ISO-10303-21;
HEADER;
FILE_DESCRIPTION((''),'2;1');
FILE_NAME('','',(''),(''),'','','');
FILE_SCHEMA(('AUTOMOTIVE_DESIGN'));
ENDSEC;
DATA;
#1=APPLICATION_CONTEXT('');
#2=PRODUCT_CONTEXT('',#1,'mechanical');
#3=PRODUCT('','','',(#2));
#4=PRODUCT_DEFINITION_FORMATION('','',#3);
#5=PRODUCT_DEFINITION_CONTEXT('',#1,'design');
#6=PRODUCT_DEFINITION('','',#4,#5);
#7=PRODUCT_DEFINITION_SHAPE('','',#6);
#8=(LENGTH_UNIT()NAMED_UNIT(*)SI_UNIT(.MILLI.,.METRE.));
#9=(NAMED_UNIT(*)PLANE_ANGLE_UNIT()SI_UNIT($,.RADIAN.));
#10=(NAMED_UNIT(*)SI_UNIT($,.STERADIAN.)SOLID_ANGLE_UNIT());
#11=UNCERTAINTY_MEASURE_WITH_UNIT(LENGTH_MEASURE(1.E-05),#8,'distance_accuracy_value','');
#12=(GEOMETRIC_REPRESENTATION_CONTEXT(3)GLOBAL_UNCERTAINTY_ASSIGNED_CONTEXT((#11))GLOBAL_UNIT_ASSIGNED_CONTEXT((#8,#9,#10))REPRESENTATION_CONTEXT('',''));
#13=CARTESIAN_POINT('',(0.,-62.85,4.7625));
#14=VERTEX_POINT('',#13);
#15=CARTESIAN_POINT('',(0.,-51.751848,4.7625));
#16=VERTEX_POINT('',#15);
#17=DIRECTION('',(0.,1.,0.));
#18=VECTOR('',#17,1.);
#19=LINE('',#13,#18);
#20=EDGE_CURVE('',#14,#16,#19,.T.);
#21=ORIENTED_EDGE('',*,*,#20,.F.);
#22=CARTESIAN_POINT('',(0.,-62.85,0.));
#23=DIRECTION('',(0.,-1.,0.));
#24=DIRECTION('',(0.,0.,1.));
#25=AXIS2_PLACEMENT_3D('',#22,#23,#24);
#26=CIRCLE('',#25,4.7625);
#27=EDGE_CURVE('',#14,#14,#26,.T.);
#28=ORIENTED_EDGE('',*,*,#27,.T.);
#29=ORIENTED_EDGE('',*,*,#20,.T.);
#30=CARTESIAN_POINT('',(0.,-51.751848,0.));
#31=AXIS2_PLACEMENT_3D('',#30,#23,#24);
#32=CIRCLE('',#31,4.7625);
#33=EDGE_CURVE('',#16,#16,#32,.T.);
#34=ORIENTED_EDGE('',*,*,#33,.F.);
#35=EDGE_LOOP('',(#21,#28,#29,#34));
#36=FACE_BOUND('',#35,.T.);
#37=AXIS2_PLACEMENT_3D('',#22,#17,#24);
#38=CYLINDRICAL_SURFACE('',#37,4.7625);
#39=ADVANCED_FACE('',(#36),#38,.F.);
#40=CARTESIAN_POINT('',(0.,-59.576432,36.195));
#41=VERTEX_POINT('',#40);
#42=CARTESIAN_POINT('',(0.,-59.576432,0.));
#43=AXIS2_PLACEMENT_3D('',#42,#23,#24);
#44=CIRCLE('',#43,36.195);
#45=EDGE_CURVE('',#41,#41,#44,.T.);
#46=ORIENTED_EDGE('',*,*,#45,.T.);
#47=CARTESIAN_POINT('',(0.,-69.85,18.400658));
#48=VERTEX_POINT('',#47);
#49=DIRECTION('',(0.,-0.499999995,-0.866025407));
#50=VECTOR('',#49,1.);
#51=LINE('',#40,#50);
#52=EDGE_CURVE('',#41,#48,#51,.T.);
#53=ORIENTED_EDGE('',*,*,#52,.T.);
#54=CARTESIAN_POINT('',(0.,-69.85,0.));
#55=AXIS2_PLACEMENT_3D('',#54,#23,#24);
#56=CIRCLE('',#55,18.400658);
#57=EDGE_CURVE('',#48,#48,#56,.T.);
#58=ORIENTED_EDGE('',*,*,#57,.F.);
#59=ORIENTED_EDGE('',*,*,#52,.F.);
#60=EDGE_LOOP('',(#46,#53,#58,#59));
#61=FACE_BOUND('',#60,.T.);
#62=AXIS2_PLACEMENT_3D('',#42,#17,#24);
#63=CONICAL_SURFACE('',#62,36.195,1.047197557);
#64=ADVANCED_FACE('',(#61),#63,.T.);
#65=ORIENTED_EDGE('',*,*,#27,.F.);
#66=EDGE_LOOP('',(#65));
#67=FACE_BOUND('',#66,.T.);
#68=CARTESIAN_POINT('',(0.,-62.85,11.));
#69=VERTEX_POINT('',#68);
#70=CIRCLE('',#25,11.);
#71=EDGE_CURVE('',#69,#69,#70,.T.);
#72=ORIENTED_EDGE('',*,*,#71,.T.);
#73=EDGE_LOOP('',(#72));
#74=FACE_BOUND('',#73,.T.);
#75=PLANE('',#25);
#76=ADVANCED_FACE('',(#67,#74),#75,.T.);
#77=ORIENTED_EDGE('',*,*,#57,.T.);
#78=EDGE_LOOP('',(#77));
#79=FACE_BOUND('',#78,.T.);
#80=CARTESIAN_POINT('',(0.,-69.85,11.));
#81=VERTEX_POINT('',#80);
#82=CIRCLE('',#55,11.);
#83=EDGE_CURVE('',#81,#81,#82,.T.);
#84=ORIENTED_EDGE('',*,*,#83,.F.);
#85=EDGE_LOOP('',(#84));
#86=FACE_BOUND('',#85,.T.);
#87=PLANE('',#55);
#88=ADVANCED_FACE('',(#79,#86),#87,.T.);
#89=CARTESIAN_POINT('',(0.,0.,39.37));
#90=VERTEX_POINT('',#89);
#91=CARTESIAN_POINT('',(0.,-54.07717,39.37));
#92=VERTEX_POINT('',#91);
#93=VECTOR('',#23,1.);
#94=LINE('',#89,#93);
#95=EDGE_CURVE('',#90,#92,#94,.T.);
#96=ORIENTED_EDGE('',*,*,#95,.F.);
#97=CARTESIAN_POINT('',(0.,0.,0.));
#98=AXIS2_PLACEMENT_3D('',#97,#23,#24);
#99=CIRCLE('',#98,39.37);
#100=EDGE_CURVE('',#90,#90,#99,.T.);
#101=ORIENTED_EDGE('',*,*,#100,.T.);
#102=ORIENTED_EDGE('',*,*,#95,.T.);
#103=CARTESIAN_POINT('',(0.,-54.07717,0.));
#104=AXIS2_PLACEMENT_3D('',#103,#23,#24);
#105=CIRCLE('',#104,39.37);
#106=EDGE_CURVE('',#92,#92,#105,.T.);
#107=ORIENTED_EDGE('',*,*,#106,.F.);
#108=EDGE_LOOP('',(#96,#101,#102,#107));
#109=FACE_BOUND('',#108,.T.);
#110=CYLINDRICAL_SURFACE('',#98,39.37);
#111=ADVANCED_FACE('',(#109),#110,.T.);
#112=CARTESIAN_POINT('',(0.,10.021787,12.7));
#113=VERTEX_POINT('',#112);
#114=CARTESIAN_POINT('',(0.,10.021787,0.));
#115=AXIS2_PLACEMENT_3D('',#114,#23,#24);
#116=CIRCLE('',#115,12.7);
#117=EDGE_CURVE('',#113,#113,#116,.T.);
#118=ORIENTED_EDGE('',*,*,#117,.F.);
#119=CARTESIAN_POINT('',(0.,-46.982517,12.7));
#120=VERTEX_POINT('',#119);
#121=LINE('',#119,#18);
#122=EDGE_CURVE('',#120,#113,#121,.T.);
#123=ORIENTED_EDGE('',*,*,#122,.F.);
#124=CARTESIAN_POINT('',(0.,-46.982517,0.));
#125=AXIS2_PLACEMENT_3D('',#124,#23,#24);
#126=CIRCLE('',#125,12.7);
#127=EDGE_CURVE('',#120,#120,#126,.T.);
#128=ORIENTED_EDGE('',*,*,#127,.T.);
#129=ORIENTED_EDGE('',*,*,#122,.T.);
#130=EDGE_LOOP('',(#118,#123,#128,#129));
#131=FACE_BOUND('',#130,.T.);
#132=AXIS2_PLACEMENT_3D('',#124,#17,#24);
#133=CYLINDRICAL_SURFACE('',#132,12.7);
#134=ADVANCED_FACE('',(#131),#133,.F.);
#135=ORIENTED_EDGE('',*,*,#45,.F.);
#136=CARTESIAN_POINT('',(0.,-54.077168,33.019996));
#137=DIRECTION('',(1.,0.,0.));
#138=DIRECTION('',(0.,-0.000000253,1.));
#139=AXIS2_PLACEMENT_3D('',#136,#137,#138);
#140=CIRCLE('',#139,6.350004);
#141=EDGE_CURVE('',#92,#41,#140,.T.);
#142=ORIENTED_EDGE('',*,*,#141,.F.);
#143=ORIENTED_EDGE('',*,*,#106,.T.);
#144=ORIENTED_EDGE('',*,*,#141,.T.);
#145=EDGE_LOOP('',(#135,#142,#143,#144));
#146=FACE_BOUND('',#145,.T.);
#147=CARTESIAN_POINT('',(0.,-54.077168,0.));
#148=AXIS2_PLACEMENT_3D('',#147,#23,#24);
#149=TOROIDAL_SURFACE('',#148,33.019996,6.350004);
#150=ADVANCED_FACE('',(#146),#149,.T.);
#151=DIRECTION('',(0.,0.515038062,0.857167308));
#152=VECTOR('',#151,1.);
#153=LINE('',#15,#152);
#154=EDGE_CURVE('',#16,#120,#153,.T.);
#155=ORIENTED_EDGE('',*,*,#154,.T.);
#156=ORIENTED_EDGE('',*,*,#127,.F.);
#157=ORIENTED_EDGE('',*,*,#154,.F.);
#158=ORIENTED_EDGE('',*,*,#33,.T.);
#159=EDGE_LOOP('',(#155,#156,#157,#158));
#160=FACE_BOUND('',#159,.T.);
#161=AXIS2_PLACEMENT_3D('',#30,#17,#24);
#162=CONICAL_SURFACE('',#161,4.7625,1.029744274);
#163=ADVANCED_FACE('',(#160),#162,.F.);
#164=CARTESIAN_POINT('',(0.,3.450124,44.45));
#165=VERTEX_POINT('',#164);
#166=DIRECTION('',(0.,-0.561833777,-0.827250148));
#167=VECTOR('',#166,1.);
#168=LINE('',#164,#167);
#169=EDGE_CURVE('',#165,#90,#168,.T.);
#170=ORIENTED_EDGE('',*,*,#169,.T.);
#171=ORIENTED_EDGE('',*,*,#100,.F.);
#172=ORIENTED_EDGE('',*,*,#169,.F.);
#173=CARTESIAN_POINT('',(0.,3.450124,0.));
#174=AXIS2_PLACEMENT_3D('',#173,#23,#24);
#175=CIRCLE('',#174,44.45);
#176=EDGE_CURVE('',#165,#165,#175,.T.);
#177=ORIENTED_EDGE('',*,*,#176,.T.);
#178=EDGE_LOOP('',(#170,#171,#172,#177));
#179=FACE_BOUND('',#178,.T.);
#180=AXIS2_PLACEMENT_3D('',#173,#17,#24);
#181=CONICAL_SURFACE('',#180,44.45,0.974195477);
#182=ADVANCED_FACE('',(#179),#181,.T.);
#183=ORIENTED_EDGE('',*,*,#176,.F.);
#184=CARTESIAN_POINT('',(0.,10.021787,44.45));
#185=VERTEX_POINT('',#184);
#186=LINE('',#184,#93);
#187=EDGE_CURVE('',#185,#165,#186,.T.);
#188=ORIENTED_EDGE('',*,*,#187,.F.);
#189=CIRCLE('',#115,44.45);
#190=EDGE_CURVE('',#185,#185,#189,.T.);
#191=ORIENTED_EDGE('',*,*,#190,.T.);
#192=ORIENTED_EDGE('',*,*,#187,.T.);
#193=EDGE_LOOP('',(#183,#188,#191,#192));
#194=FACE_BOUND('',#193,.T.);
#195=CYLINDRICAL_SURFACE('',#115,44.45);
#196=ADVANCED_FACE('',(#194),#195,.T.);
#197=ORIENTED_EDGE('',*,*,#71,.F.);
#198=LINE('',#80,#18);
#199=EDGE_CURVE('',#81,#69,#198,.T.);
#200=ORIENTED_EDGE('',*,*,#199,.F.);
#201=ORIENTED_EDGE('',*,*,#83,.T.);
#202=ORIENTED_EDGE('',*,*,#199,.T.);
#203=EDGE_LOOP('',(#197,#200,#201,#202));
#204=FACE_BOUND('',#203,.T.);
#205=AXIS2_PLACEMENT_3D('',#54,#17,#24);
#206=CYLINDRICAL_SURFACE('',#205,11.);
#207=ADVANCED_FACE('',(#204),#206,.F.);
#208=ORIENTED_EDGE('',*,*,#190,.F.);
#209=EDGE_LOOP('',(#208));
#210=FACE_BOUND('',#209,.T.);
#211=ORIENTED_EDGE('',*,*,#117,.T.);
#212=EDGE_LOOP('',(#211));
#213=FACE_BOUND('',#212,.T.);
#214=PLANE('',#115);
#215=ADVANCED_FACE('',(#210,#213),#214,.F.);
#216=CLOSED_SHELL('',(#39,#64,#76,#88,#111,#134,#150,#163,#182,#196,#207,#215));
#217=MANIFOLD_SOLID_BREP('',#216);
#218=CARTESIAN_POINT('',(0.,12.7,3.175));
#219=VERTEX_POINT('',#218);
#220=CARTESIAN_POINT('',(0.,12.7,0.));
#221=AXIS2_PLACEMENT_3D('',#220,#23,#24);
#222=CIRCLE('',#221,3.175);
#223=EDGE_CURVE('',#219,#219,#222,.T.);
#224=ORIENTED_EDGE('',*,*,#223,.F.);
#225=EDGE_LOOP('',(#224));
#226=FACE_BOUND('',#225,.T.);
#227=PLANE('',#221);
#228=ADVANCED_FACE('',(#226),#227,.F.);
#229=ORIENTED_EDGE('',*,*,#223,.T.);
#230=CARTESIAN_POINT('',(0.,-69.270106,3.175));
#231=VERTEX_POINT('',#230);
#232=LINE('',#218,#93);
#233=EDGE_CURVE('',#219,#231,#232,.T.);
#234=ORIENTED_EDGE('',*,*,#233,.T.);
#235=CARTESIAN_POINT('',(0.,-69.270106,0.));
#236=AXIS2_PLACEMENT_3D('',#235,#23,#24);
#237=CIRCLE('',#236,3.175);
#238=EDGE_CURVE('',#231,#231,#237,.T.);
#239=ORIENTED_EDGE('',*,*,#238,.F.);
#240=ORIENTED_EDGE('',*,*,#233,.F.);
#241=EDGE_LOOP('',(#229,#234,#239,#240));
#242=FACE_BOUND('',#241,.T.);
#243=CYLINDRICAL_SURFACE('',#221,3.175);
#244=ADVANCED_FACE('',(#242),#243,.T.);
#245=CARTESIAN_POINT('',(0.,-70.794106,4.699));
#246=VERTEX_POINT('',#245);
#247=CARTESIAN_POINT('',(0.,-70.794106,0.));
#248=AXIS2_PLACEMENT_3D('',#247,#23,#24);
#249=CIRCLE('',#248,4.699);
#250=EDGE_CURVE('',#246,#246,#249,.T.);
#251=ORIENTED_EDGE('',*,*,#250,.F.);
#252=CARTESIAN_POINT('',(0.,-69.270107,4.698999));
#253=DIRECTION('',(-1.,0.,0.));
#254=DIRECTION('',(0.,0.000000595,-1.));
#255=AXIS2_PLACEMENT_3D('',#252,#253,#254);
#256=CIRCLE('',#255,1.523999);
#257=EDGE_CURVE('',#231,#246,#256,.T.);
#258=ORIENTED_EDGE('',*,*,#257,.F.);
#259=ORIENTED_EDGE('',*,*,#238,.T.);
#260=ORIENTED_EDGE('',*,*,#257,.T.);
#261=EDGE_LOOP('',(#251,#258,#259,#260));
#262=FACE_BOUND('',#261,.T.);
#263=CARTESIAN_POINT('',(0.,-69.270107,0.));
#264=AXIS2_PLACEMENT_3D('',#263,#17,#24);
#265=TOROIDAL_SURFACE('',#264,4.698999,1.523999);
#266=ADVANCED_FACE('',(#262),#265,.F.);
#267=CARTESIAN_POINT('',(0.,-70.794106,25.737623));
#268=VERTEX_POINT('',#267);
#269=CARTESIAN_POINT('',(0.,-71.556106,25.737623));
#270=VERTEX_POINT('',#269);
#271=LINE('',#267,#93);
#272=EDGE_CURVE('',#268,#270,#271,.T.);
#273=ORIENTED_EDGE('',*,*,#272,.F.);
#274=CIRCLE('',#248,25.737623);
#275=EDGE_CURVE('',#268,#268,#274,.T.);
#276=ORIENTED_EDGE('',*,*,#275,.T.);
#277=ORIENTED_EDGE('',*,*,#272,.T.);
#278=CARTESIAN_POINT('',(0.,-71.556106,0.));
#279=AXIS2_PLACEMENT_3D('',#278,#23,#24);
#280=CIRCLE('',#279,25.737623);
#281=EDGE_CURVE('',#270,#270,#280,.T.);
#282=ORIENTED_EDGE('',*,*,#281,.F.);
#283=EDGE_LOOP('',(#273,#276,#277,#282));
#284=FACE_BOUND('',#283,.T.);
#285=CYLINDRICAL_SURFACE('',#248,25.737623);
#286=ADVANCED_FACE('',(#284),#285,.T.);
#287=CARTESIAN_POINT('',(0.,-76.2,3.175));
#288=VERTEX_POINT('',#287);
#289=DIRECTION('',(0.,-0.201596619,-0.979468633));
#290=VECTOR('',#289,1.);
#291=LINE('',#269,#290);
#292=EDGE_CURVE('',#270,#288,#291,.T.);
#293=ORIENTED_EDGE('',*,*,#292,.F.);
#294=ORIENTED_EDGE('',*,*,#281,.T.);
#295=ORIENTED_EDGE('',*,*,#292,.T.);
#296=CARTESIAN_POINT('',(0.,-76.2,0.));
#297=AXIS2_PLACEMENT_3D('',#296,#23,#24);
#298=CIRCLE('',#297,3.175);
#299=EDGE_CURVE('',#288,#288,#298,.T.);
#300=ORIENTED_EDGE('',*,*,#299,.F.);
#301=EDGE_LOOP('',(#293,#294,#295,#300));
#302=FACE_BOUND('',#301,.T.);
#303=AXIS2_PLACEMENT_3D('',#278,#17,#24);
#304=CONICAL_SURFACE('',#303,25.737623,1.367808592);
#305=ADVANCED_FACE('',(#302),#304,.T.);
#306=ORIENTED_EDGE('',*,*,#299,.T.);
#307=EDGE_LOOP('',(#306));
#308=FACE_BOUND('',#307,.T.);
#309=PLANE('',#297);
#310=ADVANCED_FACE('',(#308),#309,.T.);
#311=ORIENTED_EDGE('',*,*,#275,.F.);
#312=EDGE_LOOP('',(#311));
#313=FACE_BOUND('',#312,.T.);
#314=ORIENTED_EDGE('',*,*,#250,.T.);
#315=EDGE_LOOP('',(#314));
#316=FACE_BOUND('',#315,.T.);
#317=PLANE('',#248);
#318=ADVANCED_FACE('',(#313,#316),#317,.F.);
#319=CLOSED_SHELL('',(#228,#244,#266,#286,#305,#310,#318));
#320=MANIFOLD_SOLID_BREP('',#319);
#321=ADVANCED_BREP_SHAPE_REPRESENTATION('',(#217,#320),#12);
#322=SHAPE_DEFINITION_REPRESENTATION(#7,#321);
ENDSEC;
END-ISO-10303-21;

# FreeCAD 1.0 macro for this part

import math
import FreeCAD as App
import Part
import Sketcher

V = App.Vector
Q = App.Units.Quantity

doc = App.newDocument("Part")
body = doc.addObject("PartDesign::Body", "Body")

sketch1 = body.newObject("Sketcher::SketchObject", "Sketch")
sketch1.AttachmentSupport = (doc.getObject("YZ_Plane"), [""])
sketch1.MapMode = "FlatFace"
sketch1.addGeometry([
    Part.LineSegment(V(3, 44, 0), V(0, 39, 0)),
    Part.LineSegment(V(0, 39, 0), V(-54, 39, 0)),
    Part.ArcOfCircle(Part.Circle(V(-54, 33, 0), V(0, 0, 1), 6), math.radians(90), math.radians(150)),
    Part.LineSegment(V(-60, 36, 0), V(-70, 18, 0)),
    Part.LineSegment(V(-70, 18, 0), V(-70, 11, 0)),
    Part.LineSegment(V(-70, 11, 0), V(-63, 11, 0)),
    Part.LineSegment(V(-63, 11, 0), V(-63, 5, 0)),
    Part.LineSegment(V(-63, 5, 0), V(-52, 5, 0)),
    Part.LineSegment(V(-52, 5, 0), V(-47, 13, 0)),
    Part.LineSegment(V(-47, 13, 0), V(10, 13, 0)),
    Part.LineSegment(V(10, 13, 0), V(10, 44, 0)),
    Part.LineSegment(V(10, 44, 0), V(3, 44, 0)),
], False)
sketch1.addConstraint([
    Sketcher.Constraint("Coincident", 0, 2, 1, 1),
    Sketcher.Constraint("Tangent", 1, 2, 2, 1),
    Sketcher.Constraint("Tangent", 2, 2, 3, 1),
    Sketcher.Constraint("Coincident", 3, 2, 4, 1),
    Sketcher.Constraint("Coincident", 4, 2, 5, 1),
    Sketcher.Constraint("Coincident", 5, 2, 6, 1),
    Sketcher.Constraint("Coincident", 6, 2, 7, 1),
    Sketcher.Constraint("Coincident", 7, 2, 8, 1),
    Sketcher.Constraint("Coincident", 8, 2, 9, 1),
    Sketcher.Constraint("Coincident", 9, 2, 10, 1),
    Sketcher.Constraint("Coincident", 10, 2, 11, 1),
    Sketcher.Constraint("Coincident", 11, 2, 0, 1),
    Sketcher.Constraint("Horizontal", 1),
    Sketcher.Constraint("Vertical", 4),
    Sketcher.Constraint("Horizontal", 5),
    Sketcher.Constraint("Vertical", 6),
    Sketcher.Constraint("Horizontal", 7),
    Sketcher.Constraint("Horizontal", 9),
    Sketcher.Constraint("Vertical", 10),
    Sketcher.Constraint("Horizontal", 11),
    Sketcher.Constraint("PointOnObject", 0, 2, -2),
    Sketcher.Constraint("Radius", 2, Q("0.2500002 in")),
    Sketcher.Constraint("Angle", 3, Q("-120 deg")),
    Sketcher.Constraint("Angle", 8, Q("59.000001 deg")),
    Sketcher.Constraint("DistanceY", 10, 1, 10, 2, Q("1.25 in")),
    Sketcher.Constraint("DistanceY", -1, 1, 2, 3, Q("1.2999998 in")),
    Sketcher.Constraint("DistanceY", -1, 1, 8, 2, Q("0.5 in")),
    Sketcher.Constraint("DistanceX", 3, 2, -1, 1, Q("2.75 in")),
    Sketcher.Constraint("DistanceY", -1, 1, 6, 2, Q("0.1875 in")),
    Sketcher.Constraint("DistanceX", 5, 1, 5, 2, 7.0),
    Sketcher.Constraint("DistanceY", 6, 2, 6, 1, 6.2375),
    Sketcher.Constraint("DistanceX", 1, 2, 1, 1, 54.07717),
    Sketcher.Constraint("DistanceX", 7, 1, 7, 2, 11.098152),
    Sketcher.Constraint("DistanceX", 9, 1, 9, 2, 57.004304),
    Sketcher.Constraint("DistanceX", 11, 2, 11, 1, 6.571663),
])
revolution = body.newObject("PartDesign::Revolution", "Revolution")
revolution.Profile = sketch1
revolution.ReferenceAxis = (sketch1, ["H_Axis"])
revolution.Angle = 360
body2 = doc.addObject("PartDesign::Body", "Body001")

sketch2 = body2.newObject("Sketcher::SketchObject", "Sketch001")
sketch2.AttachmentSupport = (doc.getObject("YZ_Plane001"), [""])
sketch2.MapMode = "FlatFace"
sketch2.addGeometry([
    Part.LineSegment(V(-76.2, 0, 0), V(12.7, 0, 0)),
    Part.LineSegment(V(12.7, 0, 0), V(12.7, 3.2, 0)),
    Part.LineSegment(V(12.7, 3.2, 0), V(-69.3, 3.2, 0)),
    Part.ArcOfCircle(Part.Circle(V(-69.3, 4.7, 0), V(0, 0, 1), 1.5), math.radians(180), math.radians(270)),
    Part.LineSegment(V(-70.8, 4.7, 0), V(-70.8, 25.7, 0)),
    Part.LineSegment(V(-70.8, 25.7, 0), V(-71.6, 25.7, 0)),
    Part.LineSegment(V(-71.6, 25.7, 0), V(-76.2, 3.2, 0)),
    Part.LineSegment(V(-76.2, 3.2, 0), V(-76.2, 0, 0)),
], False)
sketch2.addConstraint([
    Sketcher.Constraint("Coincident", 0, 2, 1, 1),
    Sketcher.Constraint("Coincident", 1, 2, 2, 1),
    Sketcher.Constraint("Tangent", 2, 2, 3, 2),
    Sketcher.Constraint("Tangent", 3, 1, 4, 1),
    Sketcher.Constraint("Coincident", 4, 2, 5, 1),
    Sketcher.Constraint("Coincident", 5, 2, 6, 1),
    Sketcher.Constraint("Coincident", 6, 2, 7, 1),
    Sketcher.Constraint("Coincident", 7, 2, 0, 1),
    Sketcher.Constraint("Horizontal", 0),
    Sketcher.Constraint("Vertical", 1),
    Sketcher.Constraint("Horizontal", 2),
    Sketcher.Constraint("Vertical", 4),
    Sketcher.Constraint("Horizontal", 5),
    Sketcher.Constraint("Vertical", 7),
    Sketcher.Constraint("PointOnObject", 0, 2, -1),
    Sketcher.Constraint("Horizontal", 2, 2, 6, 2),
    Sketcher.Constraint("Radius", 3, Q("0.06 in")),
    Sketcher.Constraint("DistanceX", 0, 1, 0, 2, Q("3.5 in")),
    Sketcher.Constraint("DistanceX", 6, 2, -1, 1, Q("3 in")),
    Sketcher.Constraint("DistanceX", 5, 2, 5, 1, Q("0.03 in")),
    Sketcher.Constraint("DistanceY", 1, 1, 1, 2, Q("0.125 in")),
    Sketcher.Constraint("DistanceX", 2, 2, 2, 1, 81.970106),
    Sketcher.Constraint("DistanceY", 4, 1, 4, 2, 21.038623),
])
revolution2 = body2.newObject("PartDesign::Revolution", "Revolution001")
revolution2.Profile = sketch2
revolution2.ReferenceAxis = (sketch2, ["H_Axis"])
revolution2.Angle = 360

doc.recompute()
